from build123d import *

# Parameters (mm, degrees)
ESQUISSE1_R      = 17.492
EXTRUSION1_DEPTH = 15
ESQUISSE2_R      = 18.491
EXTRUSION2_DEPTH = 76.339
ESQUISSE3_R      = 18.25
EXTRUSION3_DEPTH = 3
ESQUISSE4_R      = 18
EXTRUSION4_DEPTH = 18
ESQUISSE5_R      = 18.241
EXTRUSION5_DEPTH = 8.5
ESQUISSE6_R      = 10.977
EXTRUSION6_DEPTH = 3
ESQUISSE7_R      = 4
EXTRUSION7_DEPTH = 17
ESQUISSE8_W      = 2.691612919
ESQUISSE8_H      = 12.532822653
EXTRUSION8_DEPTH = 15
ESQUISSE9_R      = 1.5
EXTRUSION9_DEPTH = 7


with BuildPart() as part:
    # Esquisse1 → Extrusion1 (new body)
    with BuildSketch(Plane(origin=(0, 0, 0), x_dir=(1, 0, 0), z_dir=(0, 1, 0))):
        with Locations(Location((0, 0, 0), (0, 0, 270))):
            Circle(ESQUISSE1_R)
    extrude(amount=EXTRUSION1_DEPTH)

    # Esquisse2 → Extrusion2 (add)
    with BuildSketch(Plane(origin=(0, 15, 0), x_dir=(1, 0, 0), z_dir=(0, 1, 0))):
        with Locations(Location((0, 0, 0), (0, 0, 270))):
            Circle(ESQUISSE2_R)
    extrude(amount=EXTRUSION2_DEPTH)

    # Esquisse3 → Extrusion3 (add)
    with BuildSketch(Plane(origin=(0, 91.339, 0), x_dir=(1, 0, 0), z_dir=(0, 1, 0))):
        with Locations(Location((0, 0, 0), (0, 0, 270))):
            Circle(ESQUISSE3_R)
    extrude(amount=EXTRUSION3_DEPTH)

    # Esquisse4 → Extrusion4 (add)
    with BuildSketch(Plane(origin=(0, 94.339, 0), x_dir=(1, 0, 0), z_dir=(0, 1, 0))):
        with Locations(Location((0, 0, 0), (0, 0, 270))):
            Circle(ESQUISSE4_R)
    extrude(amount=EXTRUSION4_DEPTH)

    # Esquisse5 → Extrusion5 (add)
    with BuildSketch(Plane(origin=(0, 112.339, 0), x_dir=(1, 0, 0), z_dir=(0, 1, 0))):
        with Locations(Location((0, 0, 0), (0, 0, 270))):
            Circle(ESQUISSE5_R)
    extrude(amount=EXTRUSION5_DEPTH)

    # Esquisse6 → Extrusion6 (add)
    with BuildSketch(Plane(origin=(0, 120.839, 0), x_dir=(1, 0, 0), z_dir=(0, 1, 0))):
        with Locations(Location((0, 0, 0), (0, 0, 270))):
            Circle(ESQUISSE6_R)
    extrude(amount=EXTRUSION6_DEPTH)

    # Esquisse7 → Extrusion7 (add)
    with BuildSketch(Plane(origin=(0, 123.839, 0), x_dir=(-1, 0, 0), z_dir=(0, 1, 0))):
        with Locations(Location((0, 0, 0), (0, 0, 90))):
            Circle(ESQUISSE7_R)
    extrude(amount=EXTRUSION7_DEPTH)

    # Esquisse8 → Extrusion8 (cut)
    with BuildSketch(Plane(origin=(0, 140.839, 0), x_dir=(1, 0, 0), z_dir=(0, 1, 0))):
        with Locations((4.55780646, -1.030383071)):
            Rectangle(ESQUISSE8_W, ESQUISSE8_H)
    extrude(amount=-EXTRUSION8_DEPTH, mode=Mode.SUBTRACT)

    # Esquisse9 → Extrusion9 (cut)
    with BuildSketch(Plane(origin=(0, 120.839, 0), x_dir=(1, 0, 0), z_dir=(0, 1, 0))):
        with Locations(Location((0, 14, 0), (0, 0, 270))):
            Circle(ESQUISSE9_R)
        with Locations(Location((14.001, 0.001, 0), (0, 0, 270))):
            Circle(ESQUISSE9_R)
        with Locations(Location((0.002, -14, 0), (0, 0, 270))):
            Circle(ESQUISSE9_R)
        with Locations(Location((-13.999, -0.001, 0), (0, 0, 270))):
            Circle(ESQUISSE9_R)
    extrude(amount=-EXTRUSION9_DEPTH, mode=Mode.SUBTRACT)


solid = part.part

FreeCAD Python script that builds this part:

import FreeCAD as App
import Part
import Sketcher
from FreeCAD import Vector
Q = App.Units.Quantity


def add_polygon(sketch, points):
    """Adds a closed chain of lines whose ends are joined by coincident constraints."""
    first, n = sketch.GeometryCount, len(points)
    for a, b in zip(points, points[1:] + points[:1]):
        sketch.addGeometry(Part.LineSegment(App.Vector(*a, 0), App.Vector(*b, 0)), False)
    for i in range(n):
        sketch.addConstraint(Sketcher.Constraint("Coincident", first + i, 2, first + (i + 1) % n, 1))

doc = App.newDocument("Part")
body = doc.addObject("PartDesign::Body", "Body")

# Sketch on XZ plane
sketch1 = doc.addObject("Sketcher::SketchObject", "Sketch")
body.addObject(sketch1)
sketch1.AttachmentSupport = (doc.XZ_Plane, [""])
sketch1.MapMode = "FlatFace"
sketch1.addGeometry(Part.Circle(Vector(0, 0, 0), Vector(0, 0, 1), 17.492), False)
sketch1.addConstraint(Sketcher.Constraint("Coincident", 0, 3, -1, 1))
sketch1.addConstraint(Sketcher.Constraint("Diameter", 0, Q("34.984 mm")))
pad1 = doc.addObject("PartDesign::Pad", "Pad")
body.addObject(pad1)
pad1.Profile = sketch1
pad1.Length = 15
pad1.Reversed = True

# Sketch on XZ plane
sketch2 = doc.addObject("Sketcher::SketchObject", "Sketch001")
body.addObject(sketch2)
sketch2.AttachmentSupport = (doc.XZ_Plane, [""])
sketch2.MapMode = "FlatFace"
sketch2.AttachmentOffset = App.Placement(Vector(0, 0, -15), App.Rotation())
sketch2.addGeometry(Part.Circle(Vector(0, 0, 0), Vector(0, 0, 1), 18.491), False)
sketch2.addConstraint(Sketcher.Constraint("Coincident", 0, 3, -1, 1))
sketch2.addConstraint(Sketcher.Constraint("Diameter", 0, Q("36.982 mm")))
pad2 = doc.addObject("PartDesign::Pad", "Pad001")
body.addObject(pad2)
pad2.Profile = sketch2
pad2.Length = 76.339
pad2.Reversed = True

# Sketch on XZ plane
sketch3 = doc.addObject("Sketcher::SketchObject", "Sketch002")
body.addObject(sketch3)
sketch3.AttachmentSupport = (doc.XZ_Plane, [""])
sketch3.MapMode = "FlatFace"
sketch3.AttachmentOffset = App.Placement(Vector(0, 0, -91.339), App.Rotation())
sketch3.addGeometry(Part.Circle(Vector(0, 0, 0), Vector(0, 0, 1), 18.25), False)
sketch3.addConstraint(Sketcher.Constraint("Coincident", 0, 3, -1, 1))
sketch3.addConstraint(Sketcher.Constraint("Diameter", 0, Q("36.5 mm")))
pad3 = doc.addObject("PartDesign::Pad", "Pad002")
body.addObject(pad3)
pad3.Profile = sketch3
pad3.Length = 3
pad3.Reversed = True

# Sketch on XZ plane
sketch4 = doc.addObject("Sketcher::SketchObject", "Sketch003")
body.addObject(sketch4)
sketch4.AttachmentSupport = (doc.XZ_Plane, [""])
sketch4.MapMode = "FlatFace"
sketch4.AttachmentOffset = App.Placement(Vector(0, 0, -94.339), App.Rotation())
sketch4.addGeometry(Part.Circle(Vector(0, 0, 0), Vector(0, 0, 1), 18), False)
sketch4.addConstraint(Sketcher.Constraint("Coincident", 0, 3, -1, 1))
sketch4.addConstraint(Sketcher.Constraint("Diameter", 0, Q("36 mm")))
pad4 = doc.addObject("PartDesign::Pad", "Pad003")
body.addObject(pad4)
pad4.Profile = sketch4
pad4.Length = 18
pad4.Reversed = True

# Sketch on XZ plane
sketch5 = doc.addObject("Sketcher::SketchObject", "Sketch004")
body.addObject(sketch5)
sketch5.AttachmentSupport = (doc.XZ_Plane, [""])
sketch5.MapMode = "FlatFace"
sketch5.AttachmentOffset = App.Placement(Vector(0, 0, -112.339), App.Rotation())
sketch5.addGeometry(Part.Circle(Vector(0, 0, 0), Vector(0, 0, 1), 18.241), False)
sketch5.addConstraint(Sketcher.Constraint("Coincident", 0, 3, -1, 1))
sketch5.addConstraint(Sketcher.Constraint("Diameter", 0, Q("36.482 mm")))
pad5 = doc.addObject("PartDesign::Pad", "Pad004")
body.addObject(pad5)
pad5.Profile = sketch5
pad5.Length = 8.5
pad5.Reversed = True

# Sketch on XZ plane
sketch6 = doc.addObject("Sketcher::SketchObject", "Sketch005")
body.addObject(sketch6)
sketch6.AttachmentSupport = (doc.XZ_Plane, [""])
sketch6.MapMode = "FlatFace"
sketch6.AttachmentOffset = App.Placement(Vector(0, 0, -120.839), App.Rotation())
sketch6.addGeometry(Part.Circle(Vector(0, 0, 0), Vector(0, 0, 1), 10.977), False)
sketch6.addConstraint(Sketcher.Constraint("Coincident", 0, 3, -1, 1))
sketch6.addConstraint(Sketcher.Constraint("Diameter", 0, Q("21.954 mm")))
pad6 = doc.addObject("PartDesign::Pad", "Pad005")
body.addObject(pad6)
pad6.Profile = sketch6
pad6.Length = 3
pad6.Reversed = True

# Sketch on XZ plane
sketch7 = doc.addObject("Sketcher::SketchObject", "Sketch006")
body.addObject(sketch7)
sketch7.AttachmentSupport = (doc.XZ_Plane, [""])
sketch7.MapMode = "FlatFace"
sketch7.AttachmentOffset = App.Placement(Vector(0, 0, -123.839), App.Rotation())
sketch7.addGeometry(Part.Circle(Vector(0, 0, 0), Vector(0, 0, 1), 4), False)
sketch7.addConstraint(Sketcher.Constraint("Coincident", 0, 3, -1, 1))
sketch7.addConstraint(Sketcher.Constraint("Diameter", 0, Q("8 mm")))
pad7 = doc.addObject("PartDesign::Pad", "Pad006")
body.addObject(pad7)
pad7.Profile = sketch7
pad7.Length = 17
pad7.Reversed = True

# Sketch on XZ plane
sketch8 = doc.addObject("Sketcher::SketchObject", "Sketch007")
body.addObject(sketch8)
sketch8.AttachmentSupport = (doc.XZ_Plane, [""])
sketch8.MapMode = "FlatFace"
sketch8.AttachmentOffset = App.Placement(Vector(0, 0, -140.839), App.Rotation())
add_polygon(sketch8, [(3.212, -5.236028), (3.212, 7.296794), (5.903613, 7.296794), (5.903613, -5.236028)])  # lines 0-3
sketch8.addConstraint(Sketcher.Constraint("Vertical", 0))
sketch8.addConstraint(Sketcher.Constraint("Horizontal", 1))
sketch8.addConstraint(Sketcher.Constraint("Vertical", 2))
sketch8.addConstraint(Sketcher.Constraint("Horizontal", 3))
sketch8.addConstraint(Sketcher.Constraint("DistanceX", -1, 1, 0, 2, Q("3.212 mm")))
sketch8.addConstraint(Sketcher.Constraint("DistanceX", 1, 1, 1, 2, Q("2.691613 mm")))
sketch8.addConstraint(Sketcher.Constraint("DistanceY", 0, 1, 0, 2, Q("12.532823 mm")))
sketch8.addConstraint(Sketcher.Constraint("DistanceY", 2, 2, -1, 1, Q("5.236028 mm")))
pocket1 = doc.addObject("PartDesign::Pocket", "Pocket")
body.addObject(pocket1)
pocket1.Profile = sketch8
pocket1.Length = 15
pocket1.Reversed = True

# Sketch on XZ plane
sketch9 = doc.addObject("Sketcher::SketchObject", "Sketch008")
body.addObject(sketch9)
sketch9.AttachmentSupport = (doc.XZ_Plane, [""])
sketch9.MapMode = "FlatFace"
sketch9.AttachmentOffset = App.Placement(Vector(0, 0, -120.839), App.Rotation())
sketch9.addGeometry(Part.Circle(Vector(0, -14, 0), Vector(0, 0, 1), 1.5), False)
sketch9.addGeometry(Part.Circle(Vector(14.001, -0.001, 0), Vector(0, 0, 1), 1.5), False)
sketch9.addGeometry(Part.Circle(Vector(0.002, 14, 0), Vector(0, 0, 1), 1.5), False)
sketch9.addGeometry(Part.Circle(Vector(-13.999, 0.001, 0), Vector(0, 0, 1), 1.5), False)
sketch9.addConstraint(Sketcher.Constraint("Equal", 0, 1))
sketch9.addConstraint(Sketcher.Constraint("Equal", 1, 2))
sketch9.addConstraint(Sketcher.Constraint("Equal", 2, 3))
sketch9.addConstraint(Sketcher.Constraint("PointOnObject", 0, 3, -2))
sketch9.addConstraint(Sketcher.Constraint("Diameter", 0, Q("3 mm")))
sketch9.addConstraint(Sketcher.Constraint("DistanceY", 0, 3, -1, 1, Q("14 mm")))
sketch9.addConstraint(Sketcher.Constraint("DistanceY", -1, 1, 2, 3, Q("14 mm")))
sketch9.addConstraint(Sketcher.Constraint("DistanceX", 3, 3, 1, 3, Q("28 mm")))
sketch9.addConstraint(Sketcher.Constraint("DistanceX", -1, 1, 1, 3, Q("14.001 mm")))
sketch9.addConstraint(Sketcher.Constraint("DistanceY", 1, 3, -1, 1, Q("0.001 mm")))
sketch9.addConstraint(Sketcher.Constraint("DistanceX", -1, 1, 2, 3, Q("0.002 mm")))
sketch9.addConstraint(Sketcher.Constraint("DistanceY", -1, 1, 3, 3, Q("0.001 mm")))
pocket2 = doc.addObject("PartDesign::Pocket", "Pocket001")
body.addObject(pocket2)
pocket2.Profile = sketch9
pocket2.Length = 7
pocket2.Reversed = True

doc.recompute()
